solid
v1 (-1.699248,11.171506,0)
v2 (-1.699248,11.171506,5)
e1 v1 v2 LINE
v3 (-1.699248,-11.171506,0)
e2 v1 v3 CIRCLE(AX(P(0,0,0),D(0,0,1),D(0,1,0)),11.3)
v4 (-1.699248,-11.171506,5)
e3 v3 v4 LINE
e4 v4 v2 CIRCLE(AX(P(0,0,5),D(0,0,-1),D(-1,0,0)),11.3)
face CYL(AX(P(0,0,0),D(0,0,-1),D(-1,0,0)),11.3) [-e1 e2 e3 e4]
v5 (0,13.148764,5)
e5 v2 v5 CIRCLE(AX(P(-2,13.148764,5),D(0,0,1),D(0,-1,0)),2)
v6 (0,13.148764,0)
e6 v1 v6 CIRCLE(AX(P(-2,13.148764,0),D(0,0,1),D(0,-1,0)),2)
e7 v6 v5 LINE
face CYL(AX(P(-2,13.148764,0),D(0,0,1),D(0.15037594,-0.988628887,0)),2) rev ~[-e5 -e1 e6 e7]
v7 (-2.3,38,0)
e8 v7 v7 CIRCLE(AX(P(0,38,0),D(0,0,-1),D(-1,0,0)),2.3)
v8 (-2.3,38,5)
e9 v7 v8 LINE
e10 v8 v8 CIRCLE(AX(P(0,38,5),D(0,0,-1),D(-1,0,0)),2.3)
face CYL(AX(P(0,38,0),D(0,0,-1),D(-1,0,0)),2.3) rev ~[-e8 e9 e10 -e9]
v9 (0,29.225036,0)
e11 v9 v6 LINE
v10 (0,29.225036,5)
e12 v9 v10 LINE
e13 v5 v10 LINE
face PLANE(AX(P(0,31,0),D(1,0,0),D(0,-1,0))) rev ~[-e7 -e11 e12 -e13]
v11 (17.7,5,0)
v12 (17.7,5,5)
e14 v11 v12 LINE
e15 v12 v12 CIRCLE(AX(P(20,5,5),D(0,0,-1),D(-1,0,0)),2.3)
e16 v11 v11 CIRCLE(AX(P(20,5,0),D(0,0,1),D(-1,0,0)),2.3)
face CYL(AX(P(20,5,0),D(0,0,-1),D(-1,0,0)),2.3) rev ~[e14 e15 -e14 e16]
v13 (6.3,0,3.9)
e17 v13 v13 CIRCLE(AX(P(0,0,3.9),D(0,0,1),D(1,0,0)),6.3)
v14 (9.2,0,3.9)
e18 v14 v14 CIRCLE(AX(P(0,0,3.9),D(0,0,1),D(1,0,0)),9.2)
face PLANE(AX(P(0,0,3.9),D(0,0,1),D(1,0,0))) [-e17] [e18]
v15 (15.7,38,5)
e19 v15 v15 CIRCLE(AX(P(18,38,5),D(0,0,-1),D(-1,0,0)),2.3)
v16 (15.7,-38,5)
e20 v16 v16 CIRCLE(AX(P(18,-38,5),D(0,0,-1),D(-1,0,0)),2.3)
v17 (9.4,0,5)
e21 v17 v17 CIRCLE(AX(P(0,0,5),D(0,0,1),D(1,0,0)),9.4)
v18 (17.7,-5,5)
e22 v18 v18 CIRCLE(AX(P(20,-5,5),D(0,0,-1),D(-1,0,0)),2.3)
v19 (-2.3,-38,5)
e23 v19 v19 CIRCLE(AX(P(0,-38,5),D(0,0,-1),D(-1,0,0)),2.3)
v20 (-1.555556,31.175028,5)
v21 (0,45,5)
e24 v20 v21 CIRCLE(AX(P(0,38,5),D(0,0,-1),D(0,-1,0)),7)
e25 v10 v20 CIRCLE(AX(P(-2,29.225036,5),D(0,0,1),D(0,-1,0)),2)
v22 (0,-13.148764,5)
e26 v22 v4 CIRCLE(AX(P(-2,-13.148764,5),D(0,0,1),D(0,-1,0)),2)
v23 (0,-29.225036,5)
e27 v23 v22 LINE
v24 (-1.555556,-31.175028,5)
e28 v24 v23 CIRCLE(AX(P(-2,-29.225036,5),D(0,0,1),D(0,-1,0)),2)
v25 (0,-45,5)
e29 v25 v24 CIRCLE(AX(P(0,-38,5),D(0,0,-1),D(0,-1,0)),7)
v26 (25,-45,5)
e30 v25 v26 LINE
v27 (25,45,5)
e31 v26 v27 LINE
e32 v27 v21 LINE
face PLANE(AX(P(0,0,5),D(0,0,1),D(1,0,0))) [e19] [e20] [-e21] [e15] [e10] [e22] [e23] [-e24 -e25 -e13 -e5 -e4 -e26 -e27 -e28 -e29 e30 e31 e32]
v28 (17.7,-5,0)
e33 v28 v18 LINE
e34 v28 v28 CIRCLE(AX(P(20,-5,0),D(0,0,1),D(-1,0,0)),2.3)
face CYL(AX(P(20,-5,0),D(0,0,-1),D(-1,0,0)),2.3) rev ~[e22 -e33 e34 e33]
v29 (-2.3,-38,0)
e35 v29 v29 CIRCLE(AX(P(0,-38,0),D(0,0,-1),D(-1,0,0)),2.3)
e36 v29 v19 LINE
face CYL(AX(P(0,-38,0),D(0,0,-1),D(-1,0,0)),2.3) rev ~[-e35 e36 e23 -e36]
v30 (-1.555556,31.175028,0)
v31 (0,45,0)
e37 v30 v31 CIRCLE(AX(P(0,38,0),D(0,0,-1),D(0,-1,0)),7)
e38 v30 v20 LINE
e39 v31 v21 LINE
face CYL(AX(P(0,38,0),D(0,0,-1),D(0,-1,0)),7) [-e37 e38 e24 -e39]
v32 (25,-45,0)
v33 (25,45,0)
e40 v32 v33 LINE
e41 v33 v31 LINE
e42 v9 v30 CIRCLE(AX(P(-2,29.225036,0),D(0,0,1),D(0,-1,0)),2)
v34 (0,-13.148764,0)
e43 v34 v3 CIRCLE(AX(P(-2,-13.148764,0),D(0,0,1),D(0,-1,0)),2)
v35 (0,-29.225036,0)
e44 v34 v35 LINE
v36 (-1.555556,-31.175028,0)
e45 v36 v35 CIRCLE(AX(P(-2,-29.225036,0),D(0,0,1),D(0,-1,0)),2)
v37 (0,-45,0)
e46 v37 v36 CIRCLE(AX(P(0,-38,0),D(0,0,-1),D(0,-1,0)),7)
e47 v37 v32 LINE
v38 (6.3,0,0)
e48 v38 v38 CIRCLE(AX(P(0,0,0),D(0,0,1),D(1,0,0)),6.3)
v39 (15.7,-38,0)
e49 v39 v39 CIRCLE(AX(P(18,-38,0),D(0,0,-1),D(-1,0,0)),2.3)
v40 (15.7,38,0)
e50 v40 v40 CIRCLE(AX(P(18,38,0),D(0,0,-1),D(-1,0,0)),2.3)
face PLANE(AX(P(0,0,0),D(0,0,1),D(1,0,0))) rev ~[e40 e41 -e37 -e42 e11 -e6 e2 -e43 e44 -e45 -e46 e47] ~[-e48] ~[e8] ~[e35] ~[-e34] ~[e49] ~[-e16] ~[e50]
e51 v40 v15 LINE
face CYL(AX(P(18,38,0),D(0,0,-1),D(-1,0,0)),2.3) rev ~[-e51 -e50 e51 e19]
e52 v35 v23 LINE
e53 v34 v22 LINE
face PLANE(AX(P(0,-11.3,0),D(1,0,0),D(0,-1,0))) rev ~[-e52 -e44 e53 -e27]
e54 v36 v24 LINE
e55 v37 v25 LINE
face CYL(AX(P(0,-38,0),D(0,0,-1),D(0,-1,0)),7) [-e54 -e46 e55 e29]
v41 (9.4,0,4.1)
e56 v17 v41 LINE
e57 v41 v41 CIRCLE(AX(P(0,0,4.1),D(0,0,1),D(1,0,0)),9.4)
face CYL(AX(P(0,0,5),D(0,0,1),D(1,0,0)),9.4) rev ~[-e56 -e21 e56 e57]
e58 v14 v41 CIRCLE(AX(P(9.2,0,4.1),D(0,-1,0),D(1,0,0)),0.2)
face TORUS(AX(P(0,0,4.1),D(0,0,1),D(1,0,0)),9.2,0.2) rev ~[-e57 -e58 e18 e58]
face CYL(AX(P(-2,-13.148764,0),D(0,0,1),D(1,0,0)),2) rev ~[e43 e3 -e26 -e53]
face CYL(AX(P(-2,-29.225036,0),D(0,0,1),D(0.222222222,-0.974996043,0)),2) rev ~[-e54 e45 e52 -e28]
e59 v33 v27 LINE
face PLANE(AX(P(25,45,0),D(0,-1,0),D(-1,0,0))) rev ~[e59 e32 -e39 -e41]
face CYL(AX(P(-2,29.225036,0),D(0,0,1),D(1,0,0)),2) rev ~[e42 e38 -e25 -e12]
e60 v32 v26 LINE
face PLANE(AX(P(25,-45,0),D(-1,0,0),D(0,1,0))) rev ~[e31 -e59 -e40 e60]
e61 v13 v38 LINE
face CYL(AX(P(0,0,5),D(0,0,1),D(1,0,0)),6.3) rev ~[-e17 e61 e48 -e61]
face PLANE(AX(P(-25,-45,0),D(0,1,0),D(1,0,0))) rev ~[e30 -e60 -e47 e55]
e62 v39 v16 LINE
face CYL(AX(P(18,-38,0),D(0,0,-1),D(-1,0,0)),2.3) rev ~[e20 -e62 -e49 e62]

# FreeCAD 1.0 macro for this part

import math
import FreeCAD as App
import Part
import Sketcher
Q = App.Units.Quantity


def edges_at(feature, points):
    """Names of the edges that pass closest to the given points."""
    edges = feature.Shape.Edges
    near = lambda p: min(range(len(edges)), key=lambda i: edges[i].distToShape(Part.Vertex(*p))[0])
    return sorted({f"Edge{near(p) + 1}" for p in points})

doc = App.newDocument("Part")
body = doc.addObject("PartDesign::Body", "Body")

sketch1 = body.newObject("Sketcher::SketchObject", "Sketch")
sketch1.AttachmentSupport = (doc.getObject("XY_Plane"), [""])
sketch1.MapMode = "FlatFace"
sketch1.addGeometry(Part.LineSegment(App.Vector(-25, 45, 0), App.Vector(-25, -45, 0)), False)
sketch1.addGeometry(Part.LineSegment(App.Vector(-25, -45, 0), App.Vector(25, -45, 0)), False)
sketch1.addGeometry(Part.LineSegment(App.Vector(25, -45, 0), App.Vector(25, 45, 0)), False)
sketch1.addGeometry(Part.LineSegment(App.Vector(25, 45, 0), App.Vector(-25, 45, 0)), False)
sketch1.addConstraint(Sketcher.Constraint("Coincident", 0, 2, 1, 1))
sketch1.addConstraint(Sketcher.Constraint("Coincident", 1, 2, 2, 1))
sketch1.addConstraint(Sketcher.Constraint("Coincident", 2, 2, 3, 1))
sketch1.addConstraint(Sketcher.Constraint("Coincident", 3, 2, 0, 1))
sketch1.addConstraint(Sketcher.Constraint("Vertical", 0))
sketch1.addConstraint(Sketcher.Constraint("Horizontal", 1))
sketch1.addConstraint(Sketcher.Constraint("Vertical", 2))
sketch1.addConstraint(Sketcher.Constraint("Horizontal", 3))
sketch1.addConstraint(Sketcher.Constraint("Symmetric", 0, 2, 2, 2, -1, 1))
sketch1.addConstraint(Sketcher.Constraint("DistanceX", 1, 1, 1, 2, Q("50 mm")))
sketch1.addConstraint(Sketcher.Constraint("DistanceY", 0, 2, 0, 1, Q("90 mm")))
pad1 = body.newObject("PartDesign::Pad", "Pad")
pad1.Profile = sketch1
pad1.Length = 5

sketch2 = body.newObject("Sketcher::SketchObject", "Sketch001")
sketch2.AttachmentSupport = (doc.getObject("XY_Plane"), [""])
sketch2.MapMode = "FlatFace"
sketch2.AttachmentOffset = App.Placement(App.Vector(0, 0, 5), App.Rotation())
sketch2.addGeometry(Part.Circle(App.Vector(0, 0, 0), App.Vector(0, 0, 1), 6.3), False)
sketch2.addConstraint(Sketcher.Constraint("Coincident", 0, 3, -1, 1))
sketch2.addConstraint(Sketcher.Constraint("Diameter", 0, Q("12.6 mm")))
pocket1 = body.newObject("PartDesign::Pocket", "Pocket")
pocket1.Profile = sketch2
pocket1.Length = 5

sketch3 = body.newObject("Sketcher::SketchObject", "Sketch002")
sketch3.AttachmentSupport = (doc.getObject("XY_Plane"), [""])
sketch3.MapMode = "FlatFace"
sketch3.AttachmentOffset = App.Placement(App.Vector(0, 0, 5), App.Rotation())
sketch3.addGeometry(Part.Circle(App.Vector(0, 0, 0), App.Vector(0, 0, 1), 9.4), False)
sketch3.addGeometry(Part.Circle(App.Vector(0, 0, 0), App.Vector(0, 0, 1), 4.5), False)
sketch3.addConstraint(Sketcher.Constraint("Coincident", 0, 3, -1, 1))
sketch3.addConstraint(Sketcher.Constraint("Coincident", 1, 3, -1, 1))
sketch3.addConstraint(Sketcher.Constraint("Diameter", 0, Q("18.8 mm")))
sketch3.addConstraint(Sketcher.Constraint("Diameter", 1, Q("9 mm")))
pocket2 = body.newObject("PartDesign::Pocket", "Pocket001")
pocket2.Profile = sketch3
pocket2.Length = 1.1
doc.recompute()

fillet = body.newObject("PartDesign::Fillet", "Fillet")
fillet.Base = (pocket2, edges_at(pocket2, [(-9.4, 0, 3.9)]))
fillet.Radius = 0.2

sketch4 = body.newObject("Sketcher::SketchObject", "Sketch003")
sketch4.AttachmentSupport = (doc.getObject("XY_Plane"), [""])
sketch4.MapMode = "FlatFace"
sketch4.addGeometry(Part.LineSegment(App.Vector(-25, 45, 0), App.Vector(0, 45, 0)), False)
sketch4.addGeometry(Part.ArcOfCircle(Part.Circle(App.Vector(0, 38, 0), App.Vector(0, 0, 1), 7), math.radians(90), math.radians(270)), False)
sketch4.addGeometry(Part.LineSegment(App.Vector(0, 31, 0), App.Vector(0, 11.3, 0)), False)
sketch4.addGeometry(Part.ArcOfCircle(Part.Circle(App.Vector(0, 0, 0), App.Vector(0, 0, 1), 11.3), math.radians(90), math.radians(270)), False)
sketch4.addGeometry(Part.LineSegment(App.Vector(0, -11.3, 0), App.Vector(0, -31, 0)), False)
sketch4.addGeometry(Part.ArcOfCircle(Part.Circle(App.Vector(0, -38, 0), App.Vector(0, 0, 1), 7), math.radians(90), math.radians(270)), False)
sketch4.addGeometry(Part.LineSegment(App.Vector(0, -45, 0), App.Vector(-25, -45, 0)), False)
sketch4.addGeometry(Part.LineSegment(App.Vector(-25, -45, 0), App.Vector(-25, 45, 0)), False)
sketch4.addGeometry(Part.Circle(App.Vector(18, 38, 0), App.Vector(0, 0, 1), 2.3), False)
sketch4.addGeometry(Part.Circle(App.Vector(18, -38, 0), App.Vector(0, 0, 1), 2.3), False)
sketch4.addGeometry(Part.Circle(App.Vector(20, 5, 0), App.Vector(0, 0, 1), 2.3), False)
sketch4.addGeometry(Part.Circle(App.Vector(20, -5, 0), App.Vector(0, 0, 1), 2.3), False)
sketch4.addGeometry(Part.Circle(App.Vector(0, 38, 0), App.Vector(0, 0, 1), 2.3), False)
sketch4.addGeometry(Part.Circle(App.Vector(0, -38, 0), App.Vector(0, 0, 1), 2.3), False)
sketch4.addConstraint(Sketcher.Constraint("Tangent", 0, 2, 1, 1))
sketch4.addConstraint(Sketcher.Constraint("Coincident", 1, 2, 2, 1))
sketch4.addConstraint(Sketcher.Constraint("Coincident", 2, 2, 3, 1))
sketch4.addConstraint(Sketcher.Constraint("Coincident", 3, 2, 4, 1))
sketch4.addConstraint(Sketcher.Constraint("Coincident", 4, 2, 5, 1))
sketch4.addConstraint(Sketcher.Constraint("Tangent", 5, 2, 6, 1))
sketch4.addConstraint(Sketcher.Constraint("Coincident", 6, 2, 7, 1))
sketch4.addConstraint(Sketcher.Constraint("Coincident", 7, 2, 0, 1))
sketch4.addConstraint(Sketcher.Constraint("Horizontal", 0))
sketch4.addConstraint(Sketcher.Constraint("Vertical", 2))
sketch4.addConstraint(Sketcher.Constraint("Vertical", 4))
sketch4.addConstraint(Sketcher.Constraint("Horizontal", 6))
sketch4.addConstraint(Sketcher.Constraint("Vertical", 7))
sketch4.addConstraint(Sketcher.Constraint("Coincident", 3, 3, -1, 1))
sketch4.addConstraint(Sketcher.Constraint("Coincident", 12, 3, 1, 3))
sketch4.addConstraint(Sketcher.Constraint("Coincident", 13, 3, 5, 3))
sketch4.addConstraint(Sketcher.Constraint("Equal", 1, 5))
sketch4.addConstraint(Sketcher.Constraint("Equal", 8, 9))
sketch4.addConstraint(Sketcher.Constraint("Equal", 9, 10))
sketch4.addConstraint(Sketcher.Constraint("Equal", 10, 11))
sketch4.addConstraint(Sketcher.Constraint("Equal", 11, 12))
sketch4.addConstraint(Sketcher.Constraint("Equal", 12, 13))
sketch4.addConstraint(Sketcher.Constraint("Symmetric", 1, 3, 5, 3, -1, 1))
sketch4.addConstraint(Sketcher.Constraint("Symmetric", 8, 3, 9, 3, -1))
sketch4.addConstraint(Sketcher.Constraint("Symmetric", 10, 3, 11, 3, -1))
sketch4.addConstraint(Sketcher.Constraint("PointOnObject", 1, 3, -2))
sketch4.addConstraint(Sketcher.Constraint("PointOnObject", 1, 2, -2))
sketch4.addConstraint(Sketcher.Constraint("PointOnObject", 3, 2, -2))
sketch4.addConstraint(Sketcher.Constraint("Horizontal", 1, 3, 8, 3))
sketch4.addConstraint(Sketcher.Constraint("Radius", 1, Q("7 mm")))
sketch4.addConstraint(Sketcher.Constraint("Diameter", 8, Q("4.6 mm")))
sketch4.addConstraint(Sketcher.Constraint("DistanceY", 7, 1, 7, 2, Q("90 mm")))
sketch4.addConstraint(Sketcher.Constraint("DistanceY", -1, 1, 10, 3, Q("5 mm")))
sketch4.addConstraint(Sketcher.Constraint("Radius", 3, Q("11.3 mm")))
sketch4.addConstraint(Sketcher.Constraint("DistanceX", 0, 1, 0, 2, Q("25 mm")))
sketch4.addConstraint(Sketcher.Constraint("DistanceX", -1, 1, 8, 3, Q("18 mm")))
sketch4.addConstraint(Sketcher.Constraint("DistanceX", -1, 1, 10, 3, Q("20 mm")))
pocket3 = body.newObject("PartDesign::Pocket", "Pocket002")
pocket3.Profile = sketch4
pocket3.Type = "ThroughAll"
pocket3.Reversed = True
doc.recompute()

fillet2 = body.newObject("PartDesign::Fillet", "Fillet001")
fillet2.Base = (pocket3, edges_at(pocket3, [
    (0, 31, 2.5),
    (0, 11.3, 2.5),
    (0, -11.3, 2.5),
    (0, -31, 2.5),
]))
fillet2.Radius = 2

doc.recompute()
